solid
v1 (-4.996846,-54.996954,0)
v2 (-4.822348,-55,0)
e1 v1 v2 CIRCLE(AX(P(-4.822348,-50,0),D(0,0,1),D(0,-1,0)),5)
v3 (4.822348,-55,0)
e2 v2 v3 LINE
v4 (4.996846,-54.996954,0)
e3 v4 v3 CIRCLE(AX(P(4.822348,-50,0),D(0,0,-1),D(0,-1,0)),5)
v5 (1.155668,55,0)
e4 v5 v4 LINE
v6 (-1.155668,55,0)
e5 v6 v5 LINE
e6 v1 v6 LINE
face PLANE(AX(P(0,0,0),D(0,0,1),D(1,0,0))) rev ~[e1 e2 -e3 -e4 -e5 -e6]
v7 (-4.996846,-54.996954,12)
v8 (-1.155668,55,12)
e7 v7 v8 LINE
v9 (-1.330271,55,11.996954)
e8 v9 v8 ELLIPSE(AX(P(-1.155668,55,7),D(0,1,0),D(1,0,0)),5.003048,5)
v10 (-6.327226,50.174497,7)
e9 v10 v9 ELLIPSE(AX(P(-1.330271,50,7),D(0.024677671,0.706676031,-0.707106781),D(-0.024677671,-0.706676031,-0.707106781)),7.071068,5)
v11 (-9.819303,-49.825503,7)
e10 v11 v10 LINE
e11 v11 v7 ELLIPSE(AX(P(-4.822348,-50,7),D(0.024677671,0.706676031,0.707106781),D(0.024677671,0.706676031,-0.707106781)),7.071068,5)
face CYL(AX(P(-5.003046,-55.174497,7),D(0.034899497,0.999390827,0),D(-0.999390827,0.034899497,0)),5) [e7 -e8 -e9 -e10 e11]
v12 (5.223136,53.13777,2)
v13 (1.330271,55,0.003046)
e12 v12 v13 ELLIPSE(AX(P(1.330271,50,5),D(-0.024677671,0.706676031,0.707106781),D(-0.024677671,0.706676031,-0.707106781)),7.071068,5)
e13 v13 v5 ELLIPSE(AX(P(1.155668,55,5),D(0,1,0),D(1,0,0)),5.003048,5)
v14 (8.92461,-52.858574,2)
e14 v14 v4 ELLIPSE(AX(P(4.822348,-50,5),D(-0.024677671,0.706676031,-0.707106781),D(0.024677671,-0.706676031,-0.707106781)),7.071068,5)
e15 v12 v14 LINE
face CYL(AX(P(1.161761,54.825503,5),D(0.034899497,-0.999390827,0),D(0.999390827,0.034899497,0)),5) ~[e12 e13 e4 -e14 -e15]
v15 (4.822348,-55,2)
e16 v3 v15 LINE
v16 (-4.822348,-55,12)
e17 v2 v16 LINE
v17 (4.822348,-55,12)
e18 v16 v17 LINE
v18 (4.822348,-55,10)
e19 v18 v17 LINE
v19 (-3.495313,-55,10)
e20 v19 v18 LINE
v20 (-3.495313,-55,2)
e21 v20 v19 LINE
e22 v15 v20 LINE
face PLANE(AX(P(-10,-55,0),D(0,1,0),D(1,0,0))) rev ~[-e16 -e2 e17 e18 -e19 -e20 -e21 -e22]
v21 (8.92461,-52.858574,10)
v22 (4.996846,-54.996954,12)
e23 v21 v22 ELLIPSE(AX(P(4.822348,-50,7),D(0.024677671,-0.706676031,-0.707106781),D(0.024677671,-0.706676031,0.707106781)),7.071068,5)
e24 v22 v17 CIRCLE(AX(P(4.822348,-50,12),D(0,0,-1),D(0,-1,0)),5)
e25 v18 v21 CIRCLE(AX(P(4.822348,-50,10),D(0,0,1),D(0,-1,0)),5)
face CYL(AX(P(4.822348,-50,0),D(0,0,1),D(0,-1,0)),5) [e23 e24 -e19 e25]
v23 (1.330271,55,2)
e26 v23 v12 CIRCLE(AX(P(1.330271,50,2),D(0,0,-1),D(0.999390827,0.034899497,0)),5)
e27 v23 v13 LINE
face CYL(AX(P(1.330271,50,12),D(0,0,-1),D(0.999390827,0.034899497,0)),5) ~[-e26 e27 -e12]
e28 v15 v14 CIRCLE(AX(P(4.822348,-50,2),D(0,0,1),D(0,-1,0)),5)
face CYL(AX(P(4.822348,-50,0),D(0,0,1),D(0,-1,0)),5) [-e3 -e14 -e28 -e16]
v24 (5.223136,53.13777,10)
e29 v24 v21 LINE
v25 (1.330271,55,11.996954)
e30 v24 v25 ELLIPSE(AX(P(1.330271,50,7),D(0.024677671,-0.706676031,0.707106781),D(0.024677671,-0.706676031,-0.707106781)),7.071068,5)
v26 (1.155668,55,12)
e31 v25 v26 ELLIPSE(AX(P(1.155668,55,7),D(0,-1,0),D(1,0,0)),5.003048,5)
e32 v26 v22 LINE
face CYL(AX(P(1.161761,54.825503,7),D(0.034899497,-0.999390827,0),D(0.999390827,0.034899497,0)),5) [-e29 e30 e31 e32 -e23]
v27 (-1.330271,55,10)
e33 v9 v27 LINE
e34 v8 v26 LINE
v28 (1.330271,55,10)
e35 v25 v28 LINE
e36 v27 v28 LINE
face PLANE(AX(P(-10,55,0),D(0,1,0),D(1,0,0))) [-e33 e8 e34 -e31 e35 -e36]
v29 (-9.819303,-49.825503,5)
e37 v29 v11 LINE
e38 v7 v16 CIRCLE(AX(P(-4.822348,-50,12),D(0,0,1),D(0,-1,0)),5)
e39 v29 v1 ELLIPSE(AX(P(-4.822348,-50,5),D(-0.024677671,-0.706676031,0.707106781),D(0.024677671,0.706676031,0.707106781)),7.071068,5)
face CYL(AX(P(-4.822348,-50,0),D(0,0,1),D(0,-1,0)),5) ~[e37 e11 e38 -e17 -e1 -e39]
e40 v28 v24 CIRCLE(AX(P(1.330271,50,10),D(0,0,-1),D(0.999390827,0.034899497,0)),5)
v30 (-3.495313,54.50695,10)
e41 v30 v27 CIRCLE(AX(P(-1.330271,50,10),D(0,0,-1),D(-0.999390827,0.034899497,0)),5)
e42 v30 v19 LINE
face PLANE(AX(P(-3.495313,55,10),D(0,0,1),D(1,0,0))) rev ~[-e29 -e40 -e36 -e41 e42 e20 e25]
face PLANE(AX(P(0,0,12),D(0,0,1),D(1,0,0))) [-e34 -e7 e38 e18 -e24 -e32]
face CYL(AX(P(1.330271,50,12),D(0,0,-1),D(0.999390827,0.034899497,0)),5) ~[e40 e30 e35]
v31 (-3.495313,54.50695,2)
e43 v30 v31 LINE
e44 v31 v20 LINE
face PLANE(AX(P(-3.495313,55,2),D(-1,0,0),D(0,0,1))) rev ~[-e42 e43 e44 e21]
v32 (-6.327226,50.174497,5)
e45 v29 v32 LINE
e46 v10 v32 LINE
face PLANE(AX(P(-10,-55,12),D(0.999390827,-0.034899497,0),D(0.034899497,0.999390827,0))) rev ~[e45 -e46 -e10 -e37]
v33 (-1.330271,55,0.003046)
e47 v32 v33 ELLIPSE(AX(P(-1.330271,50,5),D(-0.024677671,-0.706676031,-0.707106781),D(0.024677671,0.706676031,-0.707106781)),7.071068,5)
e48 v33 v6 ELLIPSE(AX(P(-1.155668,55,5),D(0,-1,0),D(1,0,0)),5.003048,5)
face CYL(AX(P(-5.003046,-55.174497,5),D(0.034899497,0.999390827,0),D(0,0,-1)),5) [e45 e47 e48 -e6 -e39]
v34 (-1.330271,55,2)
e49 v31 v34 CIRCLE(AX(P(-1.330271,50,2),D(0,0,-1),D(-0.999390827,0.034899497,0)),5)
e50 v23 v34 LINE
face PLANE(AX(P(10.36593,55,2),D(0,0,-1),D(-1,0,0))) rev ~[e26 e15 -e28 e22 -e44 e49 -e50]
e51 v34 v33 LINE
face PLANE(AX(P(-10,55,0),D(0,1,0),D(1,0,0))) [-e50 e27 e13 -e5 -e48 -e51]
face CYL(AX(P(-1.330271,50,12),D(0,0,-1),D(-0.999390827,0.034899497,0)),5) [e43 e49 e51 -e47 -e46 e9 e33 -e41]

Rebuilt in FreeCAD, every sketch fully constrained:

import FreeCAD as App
import Part
import Sketcher
Q = App.Units.Quantity


def edges_at(feature, points):
    """Names of the edges that pass closest to the given points."""
    edges = feature.Shape.Edges
    near = lambda p: min(range(len(edges)), key=lambda i: edges[i].distToShape(Part.Vertex(*p))[0])
    return sorted({f"Edge{near(p) + 1}" for p in points})

doc = App.newDocument("Part")
body = doc.addObject("PartDesign::Body", "Body")

# Sketch on XY plane
sketch1 = body.newObject("Sketcher::SketchObject", "Sketch")
sketch1.AttachmentSupport = (doc.getObject("XY_Plane"), [""])
sketch1.MapMode = "FlatFace"
sketch1.addGeometry([
    Part.LineSegment(App.Vector(-10, 55, 0), App.Vector(-10, -55, 0)),
    Part.LineSegment(App.Vector(-10, -55, 0), App.Vector(10, -55, 0)),
    Part.LineSegment(App.Vector(10, -55, 0), App.Vector(10, 55, 0)),
    Part.LineSegment(App.Vector(10, 55, 0), App.Vector(-10, 55, 0)),
], False)
sketch1.addConstraint([
    Sketcher.Constraint("Coincident", 0, 2, 1, 1),
    Sketcher.Constraint("Coincident", 1, 2, 2, 1),
    Sketcher.Constraint("Coincident", 2, 2, 3, 1),
    Sketcher.Constraint("Coincident", 3, 2, 0, 1),
    Sketcher.Constraint("Vertical", 0),
    Sketcher.Constraint("Horizontal", 1),
    Sketcher.Constraint("Vertical", 2),
    Sketcher.Constraint("Horizontal", 3),
    Sketcher.Constraint("Symmetric", 0, 2, 2, 2, -1, 1),
    Sketcher.Constraint("DistanceX", 1, 1, 1, 2, 20.0),
    Sketcher.Constraint("DistanceY", 0, 2, 0, 1, 110.0),
])
pad1 = body.newObject("PartDesign::Pad", "Pad")
pad1.Profile = sketch1
pad1.Length = 12

# Sketch on XY plane
sketch2 = body.newObject("Sketcher::SketchObject", "Sketch001")
sketch2.AttachmentSupport = (doc.getObject("XY_Plane"), [""])
sketch2.MapMode = "FlatFace"
sketch2.AttachmentOffset = App.Placement(App.Vector(0, 0, 12), App.Rotation())
sketch2.addGeometry([
    Part.LineSegment(App.Vector(6.2, 55, 0), App.Vector(10, -55, 0)),  # 0
    Part.LineSegment(App.Vector(10, -55, 0), App.Vector(10, 55, 0)),  # 1
    Part.LineSegment(App.Vector(10, 55, 0), App.Vector(6.2, 55, 0)),  # 2
    Part.LineSegment(App.Vector(-10, 55, 0), App.Vector(-10, -55, 0)),  # 3
    Part.LineSegment(App.Vector(-10, -55, 0), App.Vector(-6.2, 55, 0)),  # 4
    Part.LineSegment(App.Vector(-6.2, 55, 0), App.Vector(-10, 55, 0)),  # 5
], False)
sketch2.addConstraint([
    Sketcher.Constraint("Coincident", 0, 2, 1, 1),
    Sketcher.Constraint("Coincident", 1, 2, 2, 1),
    Sketcher.Constraint("Coincident", 2, 2, 0, 1),
    Sketcher.Constraint("Coincident", 3, 2, 4, 1),
    Sketcher.Constraint("Coincident", 4, 2, 5, 1),
    Sketcher.Constraint("Coincident", 5, 2, 3, 1),
    Sketcher.Constraint("Vertical", 1),
    Sketcher.Constraint("Horizontal", 2),
    Sketcher.Constraint("Vertical", 3),
    Sketcher.Constraint("Horizontal", 5),
    Sketcher.Constraint("Symmetric", 1, 2, 3, 2, -1, 1),
    Sketcher.Constraint("Symmetric", 2, 2, 4, 2, -2),
    Sketcher.Constraint("Horizontal", 0, 2, 3, 2),
    Sketcher.Constraint("DistanceY", 1, 1, 1, 2, 110.0),
    Sketcher.Constraint("Angle", 0, Q("-88 deg")),
    Sketcher.Constraint("DistanceX", -1, 1, 0, 2, 10.0),
])
pocket1 = body.newObject("PartDesign::Pocket", "Pocket")
pocket1.Profile = sketch2
pocket1.Type = "ThroughAll"
doc.recompute()

fillet = body.newObject("PartDesign::Fillet", "Fillet")
fillet.Base = (pocket1, edges_at(pocket1, [
    (8.079, 0, 12),
    (10, -55, 6),
    (8.079, 0, 0),
    (6.159, 55, 6),
]))
fillet.Radius = 5
doc.recompute()

fillet2 = body.newObject("PartDesign::Fillet", "Fillet001")
fillet2.Base = (fillet, edges_at(fillet, [
    (-10, -55, 6),
    (-8.079, 0, 12),
    (-6.159, 55, 6),
    (-8.079, 0, 0),
]))
fillet2.Radius = 5

# Sketch on XZ plane
sketch3 = body.newObject("Sketcher::SketchObject", "Sketch002")
sketch3.AttachmentSupport = (doc.getObject("XZ_Plane"), [""])
sketch3.MapMode = "FlatFace"
sketch3.AttachmentOffset = App.Placement(App.Vector(0, 0, -55), App.Rotation())
sketch3.addGeometry([
    Part.LineSegment(App.Vector(10, 10, 0), App.Vector(10, 2, 0)),
    Part.LineSegment(App.Vector(10, 2, 0), App.Vector(-3, 2, 0)),
    Part.LineSegment(App.Vector(-3, 2, 0), App.Vector(-3, 10, 0)),
    Part.LineSegment(App.Vector(-3, 10, 0), App.Vector(10, 10, 0)),
], False)
sketch3.addConstraint([
    Sketcher.Constraint("Coincident", 0, 2, 1, 1),
    Sketcher.Constraint("Coincident", 1, 2, 2, 1),
    Sketcher.Constraint("Coincident", 2, 2, 3, 1),
    Sketcher.Constraint("Coincident", 3, 2, 0, 1),
    Sketcher.Constraint("Vertical", 0),
    Sketcher.Constraint("Horizontal", 1),
    Sketcher.Constraint("Vertical", 2),
    Sketcher.Constraint("Horizontal", 3),
    Sketcher.Constraint("DistanceY", 0, 2, 0, 1, 8.0),
    Sketcher.Constraint("DistanceY", -1, 1, 0, 2, 2.0),
    Sketcher.Constraint("DistanceX", 1, 2, 1, 1, 13.861243),
    Sketcher.Constraint("DistanceX", -1, 1, 0, 2, 10.36593),
])
pocket2 = body.newObject("PartDesign::Pocket", "Pocket001")
pocket2.Profile = sketch3
pocket2.Type = "ThroughAll"
pocket2.Reversed = True

doc.recompute()
